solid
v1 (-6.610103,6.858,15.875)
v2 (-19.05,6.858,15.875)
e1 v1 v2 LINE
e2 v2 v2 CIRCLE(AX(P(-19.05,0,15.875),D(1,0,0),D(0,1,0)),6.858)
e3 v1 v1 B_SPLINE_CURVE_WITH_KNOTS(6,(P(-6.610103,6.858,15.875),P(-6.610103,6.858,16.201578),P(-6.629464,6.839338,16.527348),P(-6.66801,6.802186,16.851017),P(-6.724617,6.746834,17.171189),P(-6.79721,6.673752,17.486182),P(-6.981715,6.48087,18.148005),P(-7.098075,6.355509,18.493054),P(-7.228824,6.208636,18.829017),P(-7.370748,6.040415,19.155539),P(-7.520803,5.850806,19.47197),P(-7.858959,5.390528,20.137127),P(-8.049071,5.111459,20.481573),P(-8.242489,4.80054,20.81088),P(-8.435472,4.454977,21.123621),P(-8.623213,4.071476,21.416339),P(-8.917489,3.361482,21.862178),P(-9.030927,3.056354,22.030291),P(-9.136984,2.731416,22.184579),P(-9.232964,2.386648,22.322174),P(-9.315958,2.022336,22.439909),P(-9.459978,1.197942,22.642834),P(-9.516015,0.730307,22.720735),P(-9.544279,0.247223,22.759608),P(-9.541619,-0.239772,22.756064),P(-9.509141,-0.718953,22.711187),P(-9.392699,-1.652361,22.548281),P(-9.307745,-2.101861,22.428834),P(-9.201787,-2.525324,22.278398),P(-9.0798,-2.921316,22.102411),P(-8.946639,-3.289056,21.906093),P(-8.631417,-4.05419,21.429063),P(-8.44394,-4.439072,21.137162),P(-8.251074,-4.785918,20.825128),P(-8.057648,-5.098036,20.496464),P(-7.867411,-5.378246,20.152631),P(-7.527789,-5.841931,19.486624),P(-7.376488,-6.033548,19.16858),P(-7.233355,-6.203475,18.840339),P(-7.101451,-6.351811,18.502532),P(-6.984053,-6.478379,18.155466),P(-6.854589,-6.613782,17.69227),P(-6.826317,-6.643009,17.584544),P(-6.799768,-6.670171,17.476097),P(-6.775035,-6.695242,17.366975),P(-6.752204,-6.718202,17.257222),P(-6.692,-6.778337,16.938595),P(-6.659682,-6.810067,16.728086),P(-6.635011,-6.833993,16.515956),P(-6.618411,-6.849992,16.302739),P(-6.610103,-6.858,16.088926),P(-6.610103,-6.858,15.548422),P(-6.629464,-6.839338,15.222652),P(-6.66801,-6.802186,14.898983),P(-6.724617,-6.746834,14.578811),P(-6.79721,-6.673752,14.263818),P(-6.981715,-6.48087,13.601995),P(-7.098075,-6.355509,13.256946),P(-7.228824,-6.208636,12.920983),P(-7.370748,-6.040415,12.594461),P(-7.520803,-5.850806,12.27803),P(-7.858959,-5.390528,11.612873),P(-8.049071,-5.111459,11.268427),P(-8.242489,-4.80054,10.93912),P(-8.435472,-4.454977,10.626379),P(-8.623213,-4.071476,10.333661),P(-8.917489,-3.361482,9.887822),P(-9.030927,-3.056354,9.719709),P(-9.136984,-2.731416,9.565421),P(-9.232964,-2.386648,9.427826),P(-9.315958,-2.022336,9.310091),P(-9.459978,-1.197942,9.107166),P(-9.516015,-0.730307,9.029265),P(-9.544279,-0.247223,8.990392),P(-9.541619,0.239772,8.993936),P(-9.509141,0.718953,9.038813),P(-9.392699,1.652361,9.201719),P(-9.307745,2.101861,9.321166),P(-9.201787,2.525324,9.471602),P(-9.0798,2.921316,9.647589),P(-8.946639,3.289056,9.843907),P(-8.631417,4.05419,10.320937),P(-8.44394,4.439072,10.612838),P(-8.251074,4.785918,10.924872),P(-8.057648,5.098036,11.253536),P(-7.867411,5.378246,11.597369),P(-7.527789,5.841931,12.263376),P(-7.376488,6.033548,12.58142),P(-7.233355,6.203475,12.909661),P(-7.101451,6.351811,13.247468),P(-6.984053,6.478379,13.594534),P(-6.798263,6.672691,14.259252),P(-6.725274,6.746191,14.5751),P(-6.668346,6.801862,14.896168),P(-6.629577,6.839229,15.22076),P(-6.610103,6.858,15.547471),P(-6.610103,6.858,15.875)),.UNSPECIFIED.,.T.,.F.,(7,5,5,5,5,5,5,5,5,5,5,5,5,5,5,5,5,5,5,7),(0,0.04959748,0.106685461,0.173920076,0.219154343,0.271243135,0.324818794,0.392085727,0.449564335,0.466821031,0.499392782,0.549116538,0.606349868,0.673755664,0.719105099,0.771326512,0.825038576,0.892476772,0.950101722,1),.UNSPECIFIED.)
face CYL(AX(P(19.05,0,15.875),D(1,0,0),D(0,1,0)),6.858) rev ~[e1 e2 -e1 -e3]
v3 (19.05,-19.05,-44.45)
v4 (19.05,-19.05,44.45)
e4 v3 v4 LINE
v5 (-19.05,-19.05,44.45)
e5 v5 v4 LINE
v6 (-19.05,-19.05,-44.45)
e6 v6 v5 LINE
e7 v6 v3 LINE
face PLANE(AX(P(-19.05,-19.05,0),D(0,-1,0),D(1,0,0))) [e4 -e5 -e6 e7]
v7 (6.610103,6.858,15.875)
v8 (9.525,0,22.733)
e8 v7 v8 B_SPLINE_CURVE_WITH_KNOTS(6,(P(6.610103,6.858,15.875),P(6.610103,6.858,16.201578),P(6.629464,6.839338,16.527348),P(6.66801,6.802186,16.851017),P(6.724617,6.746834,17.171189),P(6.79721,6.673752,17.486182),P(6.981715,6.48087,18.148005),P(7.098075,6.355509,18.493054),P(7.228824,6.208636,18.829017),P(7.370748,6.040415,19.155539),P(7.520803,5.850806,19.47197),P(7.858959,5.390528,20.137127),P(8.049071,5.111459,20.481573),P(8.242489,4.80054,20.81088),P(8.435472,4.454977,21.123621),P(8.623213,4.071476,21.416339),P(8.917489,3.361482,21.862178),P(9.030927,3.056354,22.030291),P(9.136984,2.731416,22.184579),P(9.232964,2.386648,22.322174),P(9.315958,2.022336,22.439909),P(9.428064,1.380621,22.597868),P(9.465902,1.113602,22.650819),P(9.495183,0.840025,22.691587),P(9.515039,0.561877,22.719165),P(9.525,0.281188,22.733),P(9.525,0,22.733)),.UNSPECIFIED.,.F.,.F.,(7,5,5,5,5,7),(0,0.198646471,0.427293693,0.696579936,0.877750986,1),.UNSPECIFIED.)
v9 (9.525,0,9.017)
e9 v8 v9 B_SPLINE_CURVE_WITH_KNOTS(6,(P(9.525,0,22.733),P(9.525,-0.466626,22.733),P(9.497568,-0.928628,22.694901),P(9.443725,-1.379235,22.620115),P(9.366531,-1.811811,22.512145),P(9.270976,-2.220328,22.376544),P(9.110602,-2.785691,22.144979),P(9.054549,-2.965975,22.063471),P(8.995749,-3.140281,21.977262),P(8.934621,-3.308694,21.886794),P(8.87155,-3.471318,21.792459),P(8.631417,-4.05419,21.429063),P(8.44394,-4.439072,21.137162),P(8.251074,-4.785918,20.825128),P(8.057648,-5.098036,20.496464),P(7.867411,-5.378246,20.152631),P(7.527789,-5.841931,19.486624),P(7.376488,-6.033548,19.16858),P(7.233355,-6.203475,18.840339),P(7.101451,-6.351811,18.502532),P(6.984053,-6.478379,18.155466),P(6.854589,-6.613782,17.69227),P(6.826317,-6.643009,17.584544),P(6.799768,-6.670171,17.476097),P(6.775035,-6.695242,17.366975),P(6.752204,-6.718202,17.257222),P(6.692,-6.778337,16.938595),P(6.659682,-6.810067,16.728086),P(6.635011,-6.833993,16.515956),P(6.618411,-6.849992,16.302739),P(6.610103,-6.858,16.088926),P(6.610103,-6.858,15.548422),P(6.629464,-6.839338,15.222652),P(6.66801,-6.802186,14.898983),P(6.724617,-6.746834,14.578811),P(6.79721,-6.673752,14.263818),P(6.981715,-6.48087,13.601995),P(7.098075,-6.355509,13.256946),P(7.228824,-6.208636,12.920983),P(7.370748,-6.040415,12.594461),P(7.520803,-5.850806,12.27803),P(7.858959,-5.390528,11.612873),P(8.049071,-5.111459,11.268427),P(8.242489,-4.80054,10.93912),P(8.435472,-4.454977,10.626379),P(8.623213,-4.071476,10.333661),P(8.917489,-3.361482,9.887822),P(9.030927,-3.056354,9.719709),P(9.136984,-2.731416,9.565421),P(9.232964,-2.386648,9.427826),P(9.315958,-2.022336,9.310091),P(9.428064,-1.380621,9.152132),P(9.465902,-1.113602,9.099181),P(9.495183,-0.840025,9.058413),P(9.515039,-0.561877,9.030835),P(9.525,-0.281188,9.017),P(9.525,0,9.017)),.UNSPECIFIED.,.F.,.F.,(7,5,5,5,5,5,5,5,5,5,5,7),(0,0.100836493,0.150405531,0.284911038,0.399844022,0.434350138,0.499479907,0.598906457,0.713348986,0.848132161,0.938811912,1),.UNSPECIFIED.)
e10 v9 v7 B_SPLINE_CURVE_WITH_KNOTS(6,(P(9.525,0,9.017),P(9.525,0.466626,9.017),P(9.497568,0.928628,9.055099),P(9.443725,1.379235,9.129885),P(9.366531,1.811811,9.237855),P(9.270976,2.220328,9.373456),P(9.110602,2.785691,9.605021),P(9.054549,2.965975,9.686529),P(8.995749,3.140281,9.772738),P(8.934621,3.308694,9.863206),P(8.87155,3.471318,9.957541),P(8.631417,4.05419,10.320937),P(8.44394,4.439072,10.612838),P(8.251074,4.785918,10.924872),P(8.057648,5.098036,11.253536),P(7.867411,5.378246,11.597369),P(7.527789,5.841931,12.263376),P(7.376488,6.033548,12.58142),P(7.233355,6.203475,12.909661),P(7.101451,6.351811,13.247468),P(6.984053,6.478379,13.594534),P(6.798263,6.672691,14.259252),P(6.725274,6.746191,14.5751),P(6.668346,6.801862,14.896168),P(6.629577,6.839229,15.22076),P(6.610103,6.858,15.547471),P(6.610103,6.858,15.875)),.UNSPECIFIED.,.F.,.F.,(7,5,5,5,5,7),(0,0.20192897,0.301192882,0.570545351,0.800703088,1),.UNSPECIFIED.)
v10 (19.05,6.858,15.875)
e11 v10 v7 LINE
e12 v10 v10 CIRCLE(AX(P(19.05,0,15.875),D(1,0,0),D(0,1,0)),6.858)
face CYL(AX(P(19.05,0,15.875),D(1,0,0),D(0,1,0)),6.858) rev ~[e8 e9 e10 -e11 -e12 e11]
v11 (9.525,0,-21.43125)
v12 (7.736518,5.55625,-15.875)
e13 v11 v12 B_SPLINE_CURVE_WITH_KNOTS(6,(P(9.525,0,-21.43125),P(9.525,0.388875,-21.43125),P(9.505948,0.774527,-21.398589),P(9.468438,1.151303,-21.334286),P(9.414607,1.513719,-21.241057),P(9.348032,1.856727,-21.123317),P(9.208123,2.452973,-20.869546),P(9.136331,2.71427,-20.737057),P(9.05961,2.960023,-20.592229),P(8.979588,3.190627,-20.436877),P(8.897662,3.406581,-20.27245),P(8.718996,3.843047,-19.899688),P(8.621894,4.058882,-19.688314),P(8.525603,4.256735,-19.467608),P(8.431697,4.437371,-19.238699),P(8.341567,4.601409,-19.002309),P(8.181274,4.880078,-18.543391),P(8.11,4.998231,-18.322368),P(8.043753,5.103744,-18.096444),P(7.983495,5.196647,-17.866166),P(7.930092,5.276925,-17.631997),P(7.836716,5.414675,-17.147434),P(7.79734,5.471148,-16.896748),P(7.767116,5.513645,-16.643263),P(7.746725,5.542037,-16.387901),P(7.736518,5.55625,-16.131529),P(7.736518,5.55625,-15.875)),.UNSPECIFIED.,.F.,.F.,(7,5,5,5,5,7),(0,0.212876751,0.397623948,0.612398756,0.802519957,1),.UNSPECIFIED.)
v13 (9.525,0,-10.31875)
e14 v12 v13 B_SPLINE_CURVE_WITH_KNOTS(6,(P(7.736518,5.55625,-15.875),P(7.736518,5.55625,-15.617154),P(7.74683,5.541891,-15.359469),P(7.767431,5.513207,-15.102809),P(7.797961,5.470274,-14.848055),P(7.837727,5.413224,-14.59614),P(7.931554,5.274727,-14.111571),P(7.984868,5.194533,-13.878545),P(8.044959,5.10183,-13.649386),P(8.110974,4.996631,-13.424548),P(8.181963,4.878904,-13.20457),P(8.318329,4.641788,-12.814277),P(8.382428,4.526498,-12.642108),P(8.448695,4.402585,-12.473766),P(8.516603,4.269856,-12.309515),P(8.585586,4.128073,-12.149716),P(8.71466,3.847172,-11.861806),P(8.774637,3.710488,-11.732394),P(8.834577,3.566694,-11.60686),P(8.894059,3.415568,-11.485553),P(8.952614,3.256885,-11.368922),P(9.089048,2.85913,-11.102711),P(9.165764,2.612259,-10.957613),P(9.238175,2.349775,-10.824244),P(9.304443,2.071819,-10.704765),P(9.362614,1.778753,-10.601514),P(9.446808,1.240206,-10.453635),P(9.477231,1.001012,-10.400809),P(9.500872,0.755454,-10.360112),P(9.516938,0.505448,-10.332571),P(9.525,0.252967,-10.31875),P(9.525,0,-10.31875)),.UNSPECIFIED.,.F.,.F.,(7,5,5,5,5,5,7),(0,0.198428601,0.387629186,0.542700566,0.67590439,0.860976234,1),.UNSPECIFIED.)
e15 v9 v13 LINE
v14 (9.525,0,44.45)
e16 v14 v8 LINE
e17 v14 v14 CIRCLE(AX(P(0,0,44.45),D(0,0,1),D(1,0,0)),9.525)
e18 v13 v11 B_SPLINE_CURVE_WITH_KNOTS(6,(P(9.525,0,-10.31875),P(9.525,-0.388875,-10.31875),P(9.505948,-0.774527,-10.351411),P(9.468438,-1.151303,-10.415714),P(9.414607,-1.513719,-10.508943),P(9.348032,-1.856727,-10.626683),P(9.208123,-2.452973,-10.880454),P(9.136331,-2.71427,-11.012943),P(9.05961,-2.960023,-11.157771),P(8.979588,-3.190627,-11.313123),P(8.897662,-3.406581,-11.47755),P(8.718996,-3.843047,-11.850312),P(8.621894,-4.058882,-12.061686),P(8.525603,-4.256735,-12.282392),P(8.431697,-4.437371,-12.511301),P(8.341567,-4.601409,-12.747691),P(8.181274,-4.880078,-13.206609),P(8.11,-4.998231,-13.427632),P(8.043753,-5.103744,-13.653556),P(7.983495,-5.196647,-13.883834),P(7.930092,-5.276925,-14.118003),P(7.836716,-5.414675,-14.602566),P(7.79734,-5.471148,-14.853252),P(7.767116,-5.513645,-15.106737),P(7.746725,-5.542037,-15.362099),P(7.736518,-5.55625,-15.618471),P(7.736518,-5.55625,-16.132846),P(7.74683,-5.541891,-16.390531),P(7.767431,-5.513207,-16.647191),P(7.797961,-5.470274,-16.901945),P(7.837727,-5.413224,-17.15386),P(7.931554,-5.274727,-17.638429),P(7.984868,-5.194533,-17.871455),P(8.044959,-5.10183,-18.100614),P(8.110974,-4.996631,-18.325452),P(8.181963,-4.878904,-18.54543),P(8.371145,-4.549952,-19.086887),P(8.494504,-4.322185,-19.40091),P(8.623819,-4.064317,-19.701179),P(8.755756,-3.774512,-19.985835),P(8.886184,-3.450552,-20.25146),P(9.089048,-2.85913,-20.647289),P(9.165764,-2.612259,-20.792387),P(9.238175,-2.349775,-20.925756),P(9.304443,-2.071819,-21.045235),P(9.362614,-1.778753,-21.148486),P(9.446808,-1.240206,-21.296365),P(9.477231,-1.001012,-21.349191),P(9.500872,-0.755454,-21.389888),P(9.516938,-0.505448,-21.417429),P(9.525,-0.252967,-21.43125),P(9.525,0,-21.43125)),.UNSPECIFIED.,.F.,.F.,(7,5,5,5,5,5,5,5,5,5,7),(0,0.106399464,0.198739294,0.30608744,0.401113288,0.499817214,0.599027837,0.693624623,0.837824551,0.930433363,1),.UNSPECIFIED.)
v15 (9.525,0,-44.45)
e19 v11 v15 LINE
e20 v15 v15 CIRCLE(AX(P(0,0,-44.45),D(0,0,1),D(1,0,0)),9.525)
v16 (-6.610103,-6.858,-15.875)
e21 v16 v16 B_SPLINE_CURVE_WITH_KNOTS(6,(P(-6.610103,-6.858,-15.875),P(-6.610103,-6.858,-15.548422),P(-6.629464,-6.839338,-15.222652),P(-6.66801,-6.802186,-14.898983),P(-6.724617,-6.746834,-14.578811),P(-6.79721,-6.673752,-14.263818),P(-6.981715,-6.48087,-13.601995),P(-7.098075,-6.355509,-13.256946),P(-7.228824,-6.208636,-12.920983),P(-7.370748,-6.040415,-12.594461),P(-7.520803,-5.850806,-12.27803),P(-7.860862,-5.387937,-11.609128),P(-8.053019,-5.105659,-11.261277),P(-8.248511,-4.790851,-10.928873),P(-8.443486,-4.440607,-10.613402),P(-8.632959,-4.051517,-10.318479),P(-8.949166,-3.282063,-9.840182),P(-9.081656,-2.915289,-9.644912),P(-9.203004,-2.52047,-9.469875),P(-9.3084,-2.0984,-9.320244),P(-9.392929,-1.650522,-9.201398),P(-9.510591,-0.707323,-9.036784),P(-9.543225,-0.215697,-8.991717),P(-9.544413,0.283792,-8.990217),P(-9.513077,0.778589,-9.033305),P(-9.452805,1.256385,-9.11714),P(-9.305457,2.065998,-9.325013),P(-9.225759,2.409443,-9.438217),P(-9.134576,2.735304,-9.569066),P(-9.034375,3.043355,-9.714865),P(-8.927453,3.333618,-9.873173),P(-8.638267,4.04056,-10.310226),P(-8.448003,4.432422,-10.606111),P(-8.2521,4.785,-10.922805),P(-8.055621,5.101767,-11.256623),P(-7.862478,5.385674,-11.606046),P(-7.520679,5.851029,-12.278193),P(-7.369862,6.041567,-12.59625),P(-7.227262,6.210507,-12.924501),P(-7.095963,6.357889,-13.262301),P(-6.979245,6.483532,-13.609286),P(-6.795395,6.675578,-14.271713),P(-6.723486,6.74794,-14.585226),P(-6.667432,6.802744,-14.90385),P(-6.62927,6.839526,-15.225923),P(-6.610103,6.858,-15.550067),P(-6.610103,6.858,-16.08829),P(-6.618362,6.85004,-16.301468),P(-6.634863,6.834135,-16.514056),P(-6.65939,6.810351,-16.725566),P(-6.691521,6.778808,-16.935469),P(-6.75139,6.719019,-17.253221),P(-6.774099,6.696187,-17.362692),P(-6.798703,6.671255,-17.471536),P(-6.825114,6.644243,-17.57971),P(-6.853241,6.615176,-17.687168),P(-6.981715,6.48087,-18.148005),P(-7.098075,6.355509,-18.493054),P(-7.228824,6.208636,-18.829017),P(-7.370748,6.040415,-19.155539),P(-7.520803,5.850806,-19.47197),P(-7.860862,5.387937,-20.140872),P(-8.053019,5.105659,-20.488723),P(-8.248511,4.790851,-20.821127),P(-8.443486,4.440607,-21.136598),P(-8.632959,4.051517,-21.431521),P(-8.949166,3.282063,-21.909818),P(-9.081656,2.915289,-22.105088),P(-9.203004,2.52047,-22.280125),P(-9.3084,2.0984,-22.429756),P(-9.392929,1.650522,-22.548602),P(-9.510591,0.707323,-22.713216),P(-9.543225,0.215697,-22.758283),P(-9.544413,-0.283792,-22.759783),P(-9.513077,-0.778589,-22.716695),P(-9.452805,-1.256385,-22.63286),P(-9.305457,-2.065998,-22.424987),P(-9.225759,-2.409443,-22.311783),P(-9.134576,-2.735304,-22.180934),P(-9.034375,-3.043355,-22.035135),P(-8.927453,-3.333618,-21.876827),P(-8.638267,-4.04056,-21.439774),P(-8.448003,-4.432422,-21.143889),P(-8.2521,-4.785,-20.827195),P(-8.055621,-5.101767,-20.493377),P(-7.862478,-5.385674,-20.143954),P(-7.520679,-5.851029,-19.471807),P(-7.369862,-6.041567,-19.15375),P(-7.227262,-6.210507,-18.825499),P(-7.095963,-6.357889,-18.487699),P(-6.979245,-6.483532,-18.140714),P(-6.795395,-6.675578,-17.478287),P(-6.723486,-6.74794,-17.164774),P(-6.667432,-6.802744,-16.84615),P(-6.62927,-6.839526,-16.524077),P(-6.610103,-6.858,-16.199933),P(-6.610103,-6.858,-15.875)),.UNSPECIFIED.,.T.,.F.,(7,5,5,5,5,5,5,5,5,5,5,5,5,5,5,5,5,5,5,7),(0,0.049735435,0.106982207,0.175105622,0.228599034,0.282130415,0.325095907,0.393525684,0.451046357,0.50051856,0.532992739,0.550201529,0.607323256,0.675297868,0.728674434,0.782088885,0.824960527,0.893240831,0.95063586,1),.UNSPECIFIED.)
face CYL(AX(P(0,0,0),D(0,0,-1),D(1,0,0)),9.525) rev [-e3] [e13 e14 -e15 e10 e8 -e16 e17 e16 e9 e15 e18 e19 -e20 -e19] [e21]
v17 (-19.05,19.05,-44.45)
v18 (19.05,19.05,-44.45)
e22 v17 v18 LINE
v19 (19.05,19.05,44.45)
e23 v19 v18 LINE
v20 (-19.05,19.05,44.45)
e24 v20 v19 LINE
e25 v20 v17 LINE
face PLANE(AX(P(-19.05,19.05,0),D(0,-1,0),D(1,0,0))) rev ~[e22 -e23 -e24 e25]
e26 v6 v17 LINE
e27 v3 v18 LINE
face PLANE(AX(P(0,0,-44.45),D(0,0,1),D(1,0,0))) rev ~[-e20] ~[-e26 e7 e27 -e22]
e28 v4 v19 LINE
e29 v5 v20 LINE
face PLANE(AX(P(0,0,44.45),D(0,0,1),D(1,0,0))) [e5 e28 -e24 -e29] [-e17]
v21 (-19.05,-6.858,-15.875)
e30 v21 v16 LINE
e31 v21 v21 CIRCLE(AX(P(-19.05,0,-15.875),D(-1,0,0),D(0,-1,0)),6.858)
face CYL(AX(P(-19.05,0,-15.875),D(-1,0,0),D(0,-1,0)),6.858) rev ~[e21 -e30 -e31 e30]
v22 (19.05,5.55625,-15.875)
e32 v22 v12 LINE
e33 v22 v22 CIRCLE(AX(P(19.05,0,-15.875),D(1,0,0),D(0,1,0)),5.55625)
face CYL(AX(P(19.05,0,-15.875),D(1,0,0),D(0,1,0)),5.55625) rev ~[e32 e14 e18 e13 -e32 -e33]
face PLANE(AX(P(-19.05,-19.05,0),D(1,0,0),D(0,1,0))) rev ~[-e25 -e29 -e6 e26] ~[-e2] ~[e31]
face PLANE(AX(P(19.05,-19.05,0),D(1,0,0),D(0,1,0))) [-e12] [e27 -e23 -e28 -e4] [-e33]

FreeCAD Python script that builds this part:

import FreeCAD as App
import Part
import Sketcher

V = App.Vector
Q = App.Units.Quantity

doc = App.newDocument("Part")
body = doc.addObject("PartDesign::Body", "Body")

# Sketch on XY plane
sketch1 = body.newObject("Sketcher::SketchObject", "Sketch")
sketch1.AttachmentSupport = (doc.getObject("XY_Plane"), [""])
sketch1.MapMode = "FlatFace"
sketch1.addGeometry(Part.LineSegment(V(-19, 19, 0), V(-19, -19, 0)), False)
sketch1.addGeometry(Part.LineSegment(V(-19, -19, 0), V(19, -19, 0)), False)
sketch1.addGeometry(Part.LineSegment(V(19, -19, 0), V(19, 19, 0)), False)
sketch1.addGeometry(Part.LineSegment(V(19, 19, 0), V(-19, 19, 0)), False)
sketch1.addGeometry(Part.Circle(V(0, 0, 0), V(0, 0, 1), 10), False)
sketch1.addConstraint(Sketcher.Constraint("Coincident", 0, 2, 1, 1))
sketch1.addConstraint(Sketcher.Constraint("Coincident", 1, 2, 2, 1))
sketch1.addConstraint(Sketcher.Constraint("Coincident", 2, 2, 3, 1))
sketch1.addConstraint(Sketcher.Constraint("Coincident", 3, 2, 0, 1))
sketch1.addConstraint(Sketcher.Constraint("Vertical", 0))
sketch1.addConstraint(Sketcher.Constraint("Horizontal", 1))
sketch1.addConstraint(Sketcher.Constraint("Vertical", 2))
sketch1.addConstraint(Sketcher.Constraint("Horizontal", 3))
sketch1.addConstraint(Sketcher.Constraint("Coincident", 4, 3, -1, 1))
sketch1.addConstraint(Sketcher.Constraint("Symmetric", 0, 2, 2, 2, -1, 1))
sketch1.addConstraint(Sketcher.Constraint("Equal", 3, 0))
sketch1.addConstraint(Sketcher.Constraint("Diameter", 4, Q("0.75 in")))
sketch1.addConstraint(Sketcher.Constraint("DistanceX", 1, 1, 1, 2, Q("1.5 in")))
pad1 = body.newObject("PartDesign::Pad", "Pad")
pad1.Profile = sketch1
pad1.Length = Q("3.5 in")
pad1.Midplane = True

# Sketch on YZ plane
sketch2 = body.newObject("Sketcher::SketchObject", "Sketch001")
sketch2.AttachmentSupport = (doc.getObject("YZ_Plane"), [""])
sketch2.MapMode = "FlatFace"
sketch2.AttachmentOffset = App.Placement(V(0, 0, 0.75 * 25.4), App.Rotation())
sketch2.addGeometry(Part.Circle(V(0, 16, 0), V(0, 0, 1), 7), False)
sketch2.addConstraint(Sketcher.Constraint("PointOnObject", 0, 3, -2))
sketch2.addConstraint(Sketcher.Constraint("Diameter", 0, Q("0.54 in")))
sketch2.addConstraint(Sketcher.Constraint("DistanceY", -1, 1, 0, 3, Q("0.625 in")))
pocket1 = body.newObject("PartDesign::Pocket", "Pocket")
pocket1.Profile = sketch2
pocket1.Type = "ThroughAll"

# Sketch on YZ plane
sketch3 = body.newObject("Sketcher::SketchObject", "Sketch002")
sketch3.AttachmentSupport = (doc.getObject("YZ_Plane"), [""])
sketch3.MapMode = "FlatFace"
sketch3.AttachmentOffset = App.Placement(V(0, 0, 0.75 * 25.4), App.Rotation())
sketch3.addGeometry(Part.Circle(V(0, -16, 0), V(0, 0, 1), 6), False)
sketch3.addConstraint(Sketcher.Constraint("PointOnObject", 0, 3, -2))
sketch3.addConstraint(Sketcher.Constraint("Diameter", 0, Q("0.4375 in")))
sketch3.addConstraint(Sketcher.Constraint("DistanceY", 0, 3, -1, 1, Q("0.625 in")))
pocket2 = body.newObject("PartDesign::Pocket", "Pocket001")
pocket2.Profile = sketch3
pocket2.Length = Q("0.75 in")

# Sketch on YZ plane
sketch4 = body.newObject("Sketcher::SketchObject", "Sketch003")
sketch4.AttachmentSupport = (doc.getObject("YZ_Plane"), [""])
sketch4.MapMode = "FlatFace"
sketch4.AttachmentOffset = App.Placement(V(0, 0, -0.75 * 25.4), App.Rotation())
sketch4.addGeometry(Part.Circle(V(0, -16, 0), V(0, 0, 1), 7), False)
sketch4.addConstraint(Sketcher.Constraint("PointOnObject", 0, 3, -2))
sketch4.addConstraint(Sketcher.Constraint("Diameter", 0, Q("0.54 in")))
sketch4.addConstraint(Sketcher.Constraint("DistanceY", 0, 3, -1, 1, Q("0.625 in")))
pocket3 = body.newObject("PartDesign::Pocket", "Pocket002")
pocket3.Profile = sketch4
pocket3.Length = Q("0.75 in")
pocket3.Reversed = True

doc.recompute()
